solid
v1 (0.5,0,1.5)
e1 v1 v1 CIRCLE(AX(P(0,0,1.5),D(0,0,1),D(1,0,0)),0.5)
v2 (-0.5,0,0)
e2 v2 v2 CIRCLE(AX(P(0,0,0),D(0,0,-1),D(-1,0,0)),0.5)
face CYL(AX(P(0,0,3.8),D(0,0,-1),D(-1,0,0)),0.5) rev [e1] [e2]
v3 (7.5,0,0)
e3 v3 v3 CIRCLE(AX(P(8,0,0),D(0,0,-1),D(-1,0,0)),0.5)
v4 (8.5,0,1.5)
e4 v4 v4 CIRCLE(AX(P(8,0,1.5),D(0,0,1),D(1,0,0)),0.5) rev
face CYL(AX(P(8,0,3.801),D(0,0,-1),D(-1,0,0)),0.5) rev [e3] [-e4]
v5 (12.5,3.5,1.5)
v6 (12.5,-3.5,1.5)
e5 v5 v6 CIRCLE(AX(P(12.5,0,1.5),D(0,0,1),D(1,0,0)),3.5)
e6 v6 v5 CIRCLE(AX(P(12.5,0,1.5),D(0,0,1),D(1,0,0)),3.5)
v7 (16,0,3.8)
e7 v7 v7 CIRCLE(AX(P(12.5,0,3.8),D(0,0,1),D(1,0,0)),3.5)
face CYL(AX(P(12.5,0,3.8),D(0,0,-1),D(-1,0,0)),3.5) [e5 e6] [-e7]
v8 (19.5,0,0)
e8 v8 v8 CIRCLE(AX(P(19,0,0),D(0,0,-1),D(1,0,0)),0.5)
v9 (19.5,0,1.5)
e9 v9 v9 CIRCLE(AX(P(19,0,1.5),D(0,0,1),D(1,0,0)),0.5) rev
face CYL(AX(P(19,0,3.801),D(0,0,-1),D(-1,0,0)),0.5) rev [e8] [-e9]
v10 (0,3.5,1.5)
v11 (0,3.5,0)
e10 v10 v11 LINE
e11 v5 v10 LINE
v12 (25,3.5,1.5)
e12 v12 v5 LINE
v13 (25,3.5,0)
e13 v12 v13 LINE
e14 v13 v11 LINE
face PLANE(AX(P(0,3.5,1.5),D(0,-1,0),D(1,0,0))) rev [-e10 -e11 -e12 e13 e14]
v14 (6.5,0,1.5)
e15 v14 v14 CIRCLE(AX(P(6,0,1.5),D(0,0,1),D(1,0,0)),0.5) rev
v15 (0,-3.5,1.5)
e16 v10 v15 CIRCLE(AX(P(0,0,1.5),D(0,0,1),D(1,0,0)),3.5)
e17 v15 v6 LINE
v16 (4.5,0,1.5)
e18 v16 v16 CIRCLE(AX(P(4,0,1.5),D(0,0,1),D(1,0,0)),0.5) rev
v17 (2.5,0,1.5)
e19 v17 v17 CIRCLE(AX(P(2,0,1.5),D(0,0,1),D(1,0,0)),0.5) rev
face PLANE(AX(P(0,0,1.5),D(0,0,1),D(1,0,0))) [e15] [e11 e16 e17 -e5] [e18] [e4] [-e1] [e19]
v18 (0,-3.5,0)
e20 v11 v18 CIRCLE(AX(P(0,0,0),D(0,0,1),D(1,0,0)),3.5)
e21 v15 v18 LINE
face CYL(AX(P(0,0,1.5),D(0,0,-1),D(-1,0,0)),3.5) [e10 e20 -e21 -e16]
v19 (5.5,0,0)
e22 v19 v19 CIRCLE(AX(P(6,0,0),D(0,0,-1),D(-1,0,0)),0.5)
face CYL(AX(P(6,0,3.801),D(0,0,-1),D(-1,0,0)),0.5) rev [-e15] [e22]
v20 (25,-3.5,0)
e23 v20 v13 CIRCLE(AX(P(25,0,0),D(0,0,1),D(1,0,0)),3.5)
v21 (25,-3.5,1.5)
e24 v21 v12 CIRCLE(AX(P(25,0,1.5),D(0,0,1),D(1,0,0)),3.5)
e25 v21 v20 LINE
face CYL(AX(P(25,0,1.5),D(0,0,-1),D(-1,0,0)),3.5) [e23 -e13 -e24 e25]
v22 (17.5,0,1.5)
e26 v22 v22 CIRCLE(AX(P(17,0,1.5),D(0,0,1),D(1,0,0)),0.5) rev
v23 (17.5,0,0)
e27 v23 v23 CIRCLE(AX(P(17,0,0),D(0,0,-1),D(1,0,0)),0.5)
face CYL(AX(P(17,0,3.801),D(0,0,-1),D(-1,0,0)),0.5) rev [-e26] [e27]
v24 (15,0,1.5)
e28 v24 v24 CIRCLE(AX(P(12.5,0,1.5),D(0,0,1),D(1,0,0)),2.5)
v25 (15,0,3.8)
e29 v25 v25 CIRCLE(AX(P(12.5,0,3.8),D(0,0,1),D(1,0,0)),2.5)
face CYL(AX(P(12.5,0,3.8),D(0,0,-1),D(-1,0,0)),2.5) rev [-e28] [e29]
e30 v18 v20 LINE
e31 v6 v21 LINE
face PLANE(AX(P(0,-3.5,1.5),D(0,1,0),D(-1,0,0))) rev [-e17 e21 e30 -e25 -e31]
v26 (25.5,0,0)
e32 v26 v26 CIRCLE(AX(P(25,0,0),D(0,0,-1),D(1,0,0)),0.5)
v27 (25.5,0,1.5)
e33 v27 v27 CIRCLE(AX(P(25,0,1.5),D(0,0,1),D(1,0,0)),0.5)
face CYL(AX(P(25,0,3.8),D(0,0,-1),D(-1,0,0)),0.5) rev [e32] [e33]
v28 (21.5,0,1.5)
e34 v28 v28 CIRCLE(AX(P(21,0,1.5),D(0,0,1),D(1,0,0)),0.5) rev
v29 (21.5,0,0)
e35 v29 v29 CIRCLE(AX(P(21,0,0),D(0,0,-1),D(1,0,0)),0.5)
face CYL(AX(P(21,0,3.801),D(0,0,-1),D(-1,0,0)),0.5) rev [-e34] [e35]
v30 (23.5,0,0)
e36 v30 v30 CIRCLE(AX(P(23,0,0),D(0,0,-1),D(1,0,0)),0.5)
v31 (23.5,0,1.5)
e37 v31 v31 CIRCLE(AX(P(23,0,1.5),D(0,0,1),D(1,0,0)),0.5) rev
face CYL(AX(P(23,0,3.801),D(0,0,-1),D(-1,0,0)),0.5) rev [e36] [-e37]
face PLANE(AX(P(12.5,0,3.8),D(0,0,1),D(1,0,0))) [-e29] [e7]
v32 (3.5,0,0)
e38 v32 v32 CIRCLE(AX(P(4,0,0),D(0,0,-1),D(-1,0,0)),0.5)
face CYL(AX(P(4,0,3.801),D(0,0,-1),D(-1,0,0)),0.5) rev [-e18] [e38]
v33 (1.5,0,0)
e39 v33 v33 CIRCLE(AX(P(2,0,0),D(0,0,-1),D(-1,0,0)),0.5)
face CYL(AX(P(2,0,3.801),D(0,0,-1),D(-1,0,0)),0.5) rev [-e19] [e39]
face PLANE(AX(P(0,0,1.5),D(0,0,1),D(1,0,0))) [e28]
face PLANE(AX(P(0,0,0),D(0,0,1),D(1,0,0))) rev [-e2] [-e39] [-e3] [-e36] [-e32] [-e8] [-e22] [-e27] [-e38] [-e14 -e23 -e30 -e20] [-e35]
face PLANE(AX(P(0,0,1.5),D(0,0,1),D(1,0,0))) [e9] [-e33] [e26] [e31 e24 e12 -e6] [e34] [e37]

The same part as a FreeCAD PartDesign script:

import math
import FreeCAD as App
import Part
import Sketcher
from FreeCAD import Vector

doc = App.newDocument("Part")
body = doc.addObject("PartDesign::Body", "Body")

# Sketch on XY plane
sketch1 = doc.addObject("Sketcher::SketchObject", "Sketch")
body.addObject(sketch1)
sketch1.AttachmentSupport = (doc.XY_Plane, [""])
sketch1.MapMode = "FlatFace"
sketch1.addGeometry([
    Part.LineSegment(Vector(25, 3.5, 0), Vector(0, 3.5, 0)),
    Part.ArcOfCircle(Part.Circle(Vector(0, 0, 0), Vector(0, 0, 1), 3.5), math.radians(90), math.radians(270)),
    Part.LineSegment(Vector(0, -3.5, 0), Vector(25, -3.5, 0)),
    Part.ArcOfCircle(Part.Circle(Vector(25, 0, 0), Vector(0, 0, 1), 3.5), math.radians(-90), math.radians(90)),
], False)
sketch1.addConstraint([
    Sketcher.Constraint("Tangent", 0, 2, 1, 1),
    Sketcher.Constraint("Tangent", 1, 2, 2, 1),
    Sketcher.Constraint("Tangent", 2, 2, 3, 1),
    Sketcher.Constraint("Tangent", 3, 2, 0, 1),
    Sketcher.Constraint("Horizontal", 0),
    Sketcher.Constraint("Horizontal", 2),
    Sketcher.Constraint("Coincident", 1, 3, -1, 1),
    Sketcher.Constraint("Radius", 1, 3.5),
    Sketcher.Constraint("DistanceX", 0, 2, 0, 1, 25.0),
])
pad1 = doc.addObject("PartDesign::Pad", "Pad")
body.addObject(pad1)
pad1.Profile = sketch1
pad1.Length = 1.5

# Sketch on XY plane
sketch2 = doc.addObject("Sketcher::SketchObject", "Sketch001")
body.addObject(sketch2)
sketch2.AttachmentSupport = (doc.XY_Plane, [""])
sketch2.MapMode = "FlatFace"
sketch2.AttachmentOffset = App.Placement(Vector(0, 0, 1.5), App.Rotation())
sketch2.addGeometry([
    Part.Circle(Vector(12.5, 0, 0), Vector(0, 0, 1), 3.5),
    Part.Circle(Vector(12.5, 0, 0), Vector(0, 0, 1), 2.5),
], False)
sketch2.addConstraint([
    Sketcher.Constraint("Coincident", 1, 3, 0, 3),
    Sketcher.Constraint("PointOnObject", 0, 3, -1),
    Sketcher.Constraint("Diameter", 0, 7.0),
    Sketcher.Constraint("Diameter", 1, 5.0),
    Sketcher.Constraint("DistanceX", -1, 1, 0, 3, 12.5),
])
pad2 = doc.addObject("PartDesign::Pad", "Pad001")
body.addObject(pad2)
pad2.Profile = sketch2
pad2.Length = 2.3

# Sketch on XY plane
sketch3 = doc.addObject("Sketcher::SketchObject", "Sketch002")
body.addObject(sketch3)
sketch3.AttachmentSupport = (doc.XY_Plane, [""])
sketch3.MapMode = "FlatFace"
sketch3.addGeometry([
    Part.Circle(Vector(0, 0, 0), Vector(0, 0, 1), 0.5),
    Part.Circle(Vector(25, 0, 0), Vector(0, 0, 1), 0.5),
], False)
sketch3.addConstraint([
    Sketcher.Constraint("Coincident", 0, 3, -1, 1),
    Sketcher.Constraint("Equal", 0, 1),
    Sketcher.Constraint("PointOnObject", 1, 3, -1),
    Sketcher.Constraint("Diameter", 0, 1.0),
    Sketcher.Constraint("DistanceX", -1, 1, 1, 3, 25.0),
])
pocket1 = doc.addObject("PartDesign::Pocket", "Pocket")
body.addObject(pocket1)
pocket1.Profile = sketch3
pocket1.Type = "ThroughAll"
pocket1.Reversed = True

# Sketch on XY plane
sketch4 = doc.addObject("Sketcher::SketchObject", "Sketch003")
body.addObject(sketch4)
sketch4.AttachmentSupport = (doc.XY_Plane, [""])
sketch4.MapMode = "FlatFace"
sketch4.addGeometry(Part.Circle(Vector(8, 0, 0), Vector(0, 0, 1), 0.5), False)
sketch4.addConstraint([
    Sketcher.Constraint("PointOnObject", 0, 3, -1),
    Sketcher.Constraint("Diameter", 0, 1.0),
    Sketcher.Constraint("DistanceX", -1, 1, 0, 3, 8.0),
])
pocket2 = doc.addObject("PartDesign::Pocket", "Pocket001")
body.addObject(pocket2)
pocket2.Profile = sketch4
pocket2.Type = "UpToFirst"
pocket2.Reversed = True

# Sketch on XY plane
sketch5 = doc.addObject("Sketcher::SketchObject", "Sketch004")
body.addObject(sketch5)
sketch5.AttachmentSupport = (doc.XY_Plane, [""])
sketch5.MapMode = "FlatFace"
sketch5.addGeometry(Part.Circle(Vector(6, 0, 0), Vector(0, 0, 1), 0.5), False)
sketch5.addConstraint([
    Sketcher.Constraint("PointOnObject", 0, 3, -1),
    Sketcher.Constraint("Diameter", 0, 1.0),
    Sketcher.Constraint("DistanceX", -1, 1, 0, 3, 6.0),
])
pocket3 = doc.addObject("PartDesign::Pocket", "Pocket002")
body.addObject(pocket3)
pocket3.Profile = sketch5
pocket3.Type = "UpToFirst"
pocket3.Reversed = True

# Sketch on XY plane
sketch6 = doc.addObject("Sketcher::SketchObject", "Sketch005")
body.addObject(sketch6)
sketch6.AttachmentSupport = (doc.XY_Plane, [""])
sketch6.MapMode = "FlatFace"
sketch6.addGeometry(Part.Circle(Vector(4, 0, 0), Vector(0, 0, 1), 0.5), False)
sketch6.addConstraint([
    Sketcher.Constraint("PointOnObject", 0, 3, -1),
    Sketcher.Constraint("Diameter", 0, 1.0),
    Sketcher.Constraint("DistanceX", -1, 1, 0, 3, 4.0),
])
pocket4 = doc.addObject("PartDesign::Pocket", "Pocket003")
body.addObject(pocket4)
pocket4.Profile = sketch6
pocket4.Type = "UpToFirst"
pocket4.Reversed = True

# Sketch on XY plane
sketch7 = doc.addObject("Sketcher::SketchObject", "Sketch006")
body.addObject(sketch7)
sketch7.AttachmentSupport = (doc.XY_Plane, [""])
sketch7.MapMode = "FlatFace"
sketch7.addGeometry(Part.Circle(Vector(2, 0, 0), Vector(0, 0, 1), 0.5), False)
sketch7.addConstraint([
    Sketcher.Constraint("PointOnObject", 0, 3, -1),
    Sketcher.Constraint("Diameter", 0, 1.0),
    Sketcher.Constraint("DistanceX", -1, 1, 0, 3, 2.0),
])
pocket5 = doc.addObject("PartDesign::Pocket", "Pocket004")
body.addObject(pocket5)
pocket5.Profile = sketch7
pocket5.Type = "UpToFirst"
pocket5.Reversed = True

# Sketch on XY plane
sketch8 = doc.addObject("Sketcher::SketchObject", "Sketch007")
body.addObject(sketch8)
sketch8.AttachmentSupport = (doc.XY_Plane, [""])
sketch8.MapMode = "FlatFace"
sketch8.addGeometry(Part.Circle(Vector(23, 0, 0), Vector(0, 0, 1), 0.5), False)
sketch8.addConstraint([
    Sketcher.Constraint("PointOnObject", 0, 3, -1),
    Sketcher.Constraint("Diameter", 0, 1.0),
    Sketcher.Constraint("DistanceX", -1, 1, 0, 3, 23.0),
])
pocket6 = doc.addObject("PartDesign::Pocket", "Pocket005")
body.addObject(pocket6)
pocket6.Profile = sketch8
pocket6.Type = "UpToFirst"
pocket6.Reversed = True

# Sketch on XY plane
sketch9 = doc.addObject("Sketcher::SketchObject", "Sketch008")
body.addObject(sketch9)
sketch9.AttachmentSupport = (doc.XY_Plane, [""])
sketch9.MapMode = "FlatFace"
sketch9.addGeometry(Part.Circle(Vector(21, 0, 0), Vector(0, 0, 1), 0.5), False)
sketch9.addConstraint([
    Sketcher.Constraint("PointOnObject", 0, 3, -1),
    Sketcher.Constraint("Diameter", 0, 1.0),
    Sketcher.Constraint("DistanceX", -1, 1, 0, 3, 21.0),
])
pocket7 = doc.addObject("PartDesign::Pocket", "Pocket006")
body.addObject(pocket7)
pocket7.Profile = sketch9
pocket7.Type = "UpToFirst"
pocket7.Reversed = True

# Sketch on XY plane
sketch10 = doc.addObject("Sketcher::SketchObject", "Sketch009")
body.addObject(sketch10)
sketch10.AttachmentSupport = (doc.XY_Plane, [""])
sketch10.MapMode = "FlatFace"
sketch10.addGeometry(Part.Circle(Vector(19, 0, 0), Vector(0, 0, 1), 0.5), False)
sketch10.addConstraint([
    Sketcher.Constraint("PointOnObject", 0, 3, -1),
    Sketcher.Constraint("Diameter", 0, 1.0),
    Sketcher.Constraint("DistanceX", -1, 1, 0, 3, 19.0),
])
pocket8 = doc.addObject("PartDesign::Pocket", "Pocket007")
body.addObject(pocket8)
pocket8.Profile = sketch10
pocket8.Type = "UpToFirst"
pocket8.Reversed = True

# Sketch on XY plane
sketch11 = doc.addObject("Sketcher::SketchObject", "Sketch010")
body.addObject(sketch11)
sketch11.AttachmentSupport = (doc.XY_Plane, [""])
sketch11.MapMode = "FlatFace"
sketch11.addGeometry(Part.Circle(Vector(17, 0, 0), Vector(0, 0, 1), 0.5), False)
sketch11.addConstraint([
    Sketcher.Constraint("PointOnObject", 0, 3, -1),
    Sketcher.Constraint("Diameter", 0, 1.0),
    Sketcher.Constraint("DistanceX", -1, 1, 0, 3, 17.0),
])
pocket9 = doc.addObject("PartDesign::Pocket", "Pocket008")
body.addObject(pocket9)
pocket9.Profile = sketch11
pocket9.Type = "UpToFirst"
pocket9.Reversed = True

doc.recompute()
